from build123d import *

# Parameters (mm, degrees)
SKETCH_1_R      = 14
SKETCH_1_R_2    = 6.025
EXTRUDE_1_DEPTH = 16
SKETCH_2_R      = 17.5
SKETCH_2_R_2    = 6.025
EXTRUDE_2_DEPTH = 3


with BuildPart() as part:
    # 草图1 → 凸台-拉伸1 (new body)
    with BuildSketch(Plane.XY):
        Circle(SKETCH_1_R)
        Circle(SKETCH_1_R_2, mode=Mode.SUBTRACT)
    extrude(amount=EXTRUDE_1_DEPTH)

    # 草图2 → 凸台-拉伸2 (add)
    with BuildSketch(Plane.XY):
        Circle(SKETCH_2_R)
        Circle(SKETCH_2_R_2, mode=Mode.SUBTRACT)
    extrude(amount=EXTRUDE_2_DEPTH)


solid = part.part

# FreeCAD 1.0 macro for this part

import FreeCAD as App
import Part
import Sketcher
from FreeCAD import Vector

doc = App.newDocument("Part")
body = doc.addObject("PartDesign::Body", "Body")

# Sketch on XY plane
sketch1 = body.newObject("Sketcher::SketchObject", "Sketch")
sketch1.AttachmentSupport = (doc.getObject("XY_Plane"), [""])
sketch1.MapMode = "FlatFace"
sketch1.addGeometry([
    Part.Circle(Vector(0, 0, 0), Vector(0, 0, 1), 14),
    Part.Circle(Vector(0, 0, 0), Vector(0, 0, 1), 6.025),
], False)
sketch1.addConstraint([
    Sketcher.Constraint("Coincident", 0, 3, -1, 1),
    Sketcher.Constraint("Coincident", 1, 3, -1, 1),
    Sketcher.Constraint("Diameter", 0, 28.0),
    Sketcher.Constraint("Diameter", 1, 12.05),
])
pad1 = body.newObject("PartDesign::Pad", "Pad")
pad1.Profile = sketch1
pad1.Length = 16

# Sketch on XY plane
sketch2 = body.newObject("Sketcher::SketchObject", "Sketch001")
sketch2.AttachmentSupport = (doc.getObject("XY_Plane"), [""])
sketch2.MapMode = "FlatFace"
sketch2.addGeometry([
    Part.Circle(Vector(0, 0, 0), Vector(0, 0, 1), 17.5),
    Part.Circle(Vector(0, 0, 0), Vector(0, 0, 1), 6.025),
], False)
sketch2.addConstraint([
    Sketcher.Constraint("Coincident", 0, 3, -1, 1),
    Sketcher.Constraint("Coincident", 1, 3, -1, 1),
    Sketcher.Constraint("Diameter", 0, 35.0),
    Sketcher.Constraint("Diameter", 1, 12.05),
])
pad2 = body.newObject("PartDesign::Pad", "Pad001")
pad2.Profile = sketch2
pad2.Length = 3

doc.recompute()
